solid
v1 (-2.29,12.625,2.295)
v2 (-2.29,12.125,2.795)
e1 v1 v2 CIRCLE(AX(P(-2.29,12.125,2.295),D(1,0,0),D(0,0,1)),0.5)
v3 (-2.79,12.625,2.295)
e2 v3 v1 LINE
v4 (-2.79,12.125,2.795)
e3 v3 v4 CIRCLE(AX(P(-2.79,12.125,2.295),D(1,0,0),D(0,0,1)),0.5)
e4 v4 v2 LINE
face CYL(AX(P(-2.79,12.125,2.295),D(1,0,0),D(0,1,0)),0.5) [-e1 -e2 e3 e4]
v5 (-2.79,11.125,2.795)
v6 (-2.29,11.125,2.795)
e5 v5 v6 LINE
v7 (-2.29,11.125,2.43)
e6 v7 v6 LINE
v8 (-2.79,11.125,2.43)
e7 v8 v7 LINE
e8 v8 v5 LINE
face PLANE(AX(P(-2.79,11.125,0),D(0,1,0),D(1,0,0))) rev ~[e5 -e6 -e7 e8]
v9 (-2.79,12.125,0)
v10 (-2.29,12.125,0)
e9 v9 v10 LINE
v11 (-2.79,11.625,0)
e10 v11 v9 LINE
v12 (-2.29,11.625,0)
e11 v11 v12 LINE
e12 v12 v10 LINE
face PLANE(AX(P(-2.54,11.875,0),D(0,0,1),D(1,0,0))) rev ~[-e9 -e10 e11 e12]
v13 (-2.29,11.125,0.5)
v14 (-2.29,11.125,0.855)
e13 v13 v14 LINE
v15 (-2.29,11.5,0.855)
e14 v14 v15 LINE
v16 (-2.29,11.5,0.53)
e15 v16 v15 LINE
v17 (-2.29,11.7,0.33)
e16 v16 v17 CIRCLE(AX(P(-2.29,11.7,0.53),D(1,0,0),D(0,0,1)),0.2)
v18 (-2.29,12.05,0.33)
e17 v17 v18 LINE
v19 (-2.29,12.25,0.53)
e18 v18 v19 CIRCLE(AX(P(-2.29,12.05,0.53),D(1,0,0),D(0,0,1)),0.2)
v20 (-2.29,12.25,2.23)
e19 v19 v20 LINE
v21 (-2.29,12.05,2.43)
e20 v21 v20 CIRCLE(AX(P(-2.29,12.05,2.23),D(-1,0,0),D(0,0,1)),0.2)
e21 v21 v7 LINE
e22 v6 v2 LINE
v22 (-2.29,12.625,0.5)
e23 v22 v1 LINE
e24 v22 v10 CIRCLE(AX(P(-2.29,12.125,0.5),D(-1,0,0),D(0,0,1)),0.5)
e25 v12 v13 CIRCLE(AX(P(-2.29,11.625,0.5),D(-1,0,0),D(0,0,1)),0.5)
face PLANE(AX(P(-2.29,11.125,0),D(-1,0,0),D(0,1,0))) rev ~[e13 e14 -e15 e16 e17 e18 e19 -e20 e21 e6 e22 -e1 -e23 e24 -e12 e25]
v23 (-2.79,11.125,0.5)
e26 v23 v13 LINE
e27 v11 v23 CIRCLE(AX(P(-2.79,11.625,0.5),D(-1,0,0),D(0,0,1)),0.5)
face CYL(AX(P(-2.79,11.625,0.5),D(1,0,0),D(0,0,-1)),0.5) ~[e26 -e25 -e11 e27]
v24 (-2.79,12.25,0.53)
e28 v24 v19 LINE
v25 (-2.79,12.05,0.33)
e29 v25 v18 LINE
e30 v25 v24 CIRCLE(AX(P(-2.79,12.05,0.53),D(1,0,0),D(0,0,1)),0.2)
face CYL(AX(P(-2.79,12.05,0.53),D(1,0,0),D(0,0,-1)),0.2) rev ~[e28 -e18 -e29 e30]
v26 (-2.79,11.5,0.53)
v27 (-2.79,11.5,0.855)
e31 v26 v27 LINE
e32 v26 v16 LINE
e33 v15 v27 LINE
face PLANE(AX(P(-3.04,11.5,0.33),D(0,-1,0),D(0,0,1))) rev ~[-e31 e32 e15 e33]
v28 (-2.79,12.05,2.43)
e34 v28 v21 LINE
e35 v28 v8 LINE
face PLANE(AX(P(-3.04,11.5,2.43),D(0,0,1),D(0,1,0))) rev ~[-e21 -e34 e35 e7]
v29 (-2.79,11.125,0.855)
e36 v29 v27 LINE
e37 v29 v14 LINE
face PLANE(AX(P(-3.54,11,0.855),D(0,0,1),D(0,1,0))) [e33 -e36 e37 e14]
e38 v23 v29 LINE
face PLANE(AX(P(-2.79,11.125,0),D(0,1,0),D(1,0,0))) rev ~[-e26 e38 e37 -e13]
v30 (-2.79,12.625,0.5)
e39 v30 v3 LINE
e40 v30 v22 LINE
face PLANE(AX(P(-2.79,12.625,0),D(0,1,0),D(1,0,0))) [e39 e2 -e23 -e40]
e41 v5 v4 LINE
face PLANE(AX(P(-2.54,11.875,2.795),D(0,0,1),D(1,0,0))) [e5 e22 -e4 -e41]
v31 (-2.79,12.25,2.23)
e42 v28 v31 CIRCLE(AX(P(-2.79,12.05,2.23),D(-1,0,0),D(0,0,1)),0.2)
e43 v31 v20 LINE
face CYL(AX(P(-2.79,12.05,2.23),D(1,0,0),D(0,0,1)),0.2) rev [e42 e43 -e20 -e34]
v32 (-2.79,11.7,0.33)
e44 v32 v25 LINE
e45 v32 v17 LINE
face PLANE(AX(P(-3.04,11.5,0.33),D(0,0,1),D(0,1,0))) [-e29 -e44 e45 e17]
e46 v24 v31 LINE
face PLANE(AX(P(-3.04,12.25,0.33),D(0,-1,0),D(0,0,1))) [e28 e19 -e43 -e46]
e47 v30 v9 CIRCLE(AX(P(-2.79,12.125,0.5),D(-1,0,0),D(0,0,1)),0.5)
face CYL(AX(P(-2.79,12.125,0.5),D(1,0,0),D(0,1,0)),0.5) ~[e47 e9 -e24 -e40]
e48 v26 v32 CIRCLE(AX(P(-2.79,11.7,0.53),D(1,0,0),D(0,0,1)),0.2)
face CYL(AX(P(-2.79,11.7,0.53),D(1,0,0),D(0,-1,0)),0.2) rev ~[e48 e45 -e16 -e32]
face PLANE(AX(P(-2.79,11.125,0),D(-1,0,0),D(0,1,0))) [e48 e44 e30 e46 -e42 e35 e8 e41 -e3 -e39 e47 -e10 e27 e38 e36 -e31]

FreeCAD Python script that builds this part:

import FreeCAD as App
import Part
import Sketcher
from FreeCAD import Vector
Q = App.Units.Quantity


def edges_at(feature, points):
    """Names of the edges that pass closest to the given points."""
    edges = feature.Shape.Edges
    near = lambda p: min(range(len(edges)), key=lambda i: edges[i].distToShape(Part.Vertex(*p))[0])
    return sorted({f"Edge{near(p) + 1}" for p in points})


def add_polygon(sketch, points):
    """Adds a closed chain of lines whose ends are joined by coincident constraints."""
    first, n = sketch.GeometryCount, len(points)
    for a, b in zip(points, points[1:] + points[:1]):
        sketch.addGeometry(Part.LineSegment(App.Vector(*a, 0), App.Vector(*b, 0)), False)
    for i in range(n):
        sketch.addConstraint(Sketcher.Constraint("Coincident", first + i, 2, first + (i + 1) % n, 1))

doc = App.newDocument("Part")
body = doc.addObject("PartDesign::Body", "Body")

sketch1 = body.newObject("Sketcher::SketchObject", "Sketch")
sketch1.AttachmentSupport = (doc.getObject("XY_Plane"), [""])
sketch1.MapMode = "FlatFace"
add_polygon(sketch1, [(-0.25, 12.625), (-0.25, 11.125), (0.25, 11.125), (0.25, 12.625)])
sketch1.addConstraint([
    Sketcher.Constraint("Vertical", 0),
    Sketcher.Constraint("Horizontal", 1),
    Sketcher.Constraint("Vertical", 2),
    Sketcher.Constraint("Horizontal", 3),
    Sketcher.Constraint("DistanceX", 1, 1, 1, 2, Q("0.5 mm")),
    Sketcher.Constraint("DistanceY", 0, 2, 0, 1, Q("1.5 mm")),
    Sketcher.Constraint("DistanceX", 0, 2, -1, 1, Q("0.25 mm")),
    Sketcher.Constraint("DistanceY", -1, 1, 0, 2, Q("11.125 mm")),
])
pad1 = body.newObject("PartDesign::Pad", "Pad")
pad1.Profile = sketch1
pad1.Length = 2.795
doc.recompute()

fillet = body.newObject("PartDesign::Fillet", "Fillet")
fillet.Base = (pad1, edges_at(pad1, [(0, 12.625, 0)]))
fillet.Radius = 0.5
doc.recompute()

fillet2 = body.newObject("PartDesign::Fillet", "Fillet001")
fillet2.Base = (fillet, edges_at(fillet, [(0, 12.625, 2.795)]))
fillet2.Radius = 0.5
doc.recompute()

fillet3 = body.newObject("PartDesign::Fillet", "Fillet002")
fillet3.Base = (fillet2, edges_at(fillet2, [(0, 11.125, 0)]))
fillet3.Radius = 0.5

sketch2 = body.newObject("Sketcher::SketchObject", "Sketch001")
sketch2.AttachmentSupport = (doc.getObject("YZ_Plane"), [""])
sketch2.MapMode = "FlatFace"
sketch2.AttachmentOffset = App.Placement(Vector(0, 0, -0.5), App.Rotation())
add_polygon(sketch2, [(11.5, 2.43), (11.5, 0.33), (12.25, 0.33), (12.25, 2.43)])
sketch2.addConstraint([
    Sketcher.Constraint("Vertical", 0),
    Sketcher.Constraint("Horizontal", 1),
    Sketcher.Constraint("Vertical", 2),
    Sketcher.Constraint("Horizontal", 3),
    Sketcher.Constraint("DistanceY", 0, 2, 0, 1, Q("2.1 mm")),
    Sketcher.Constraint("DistanceX", 1, 1, 1, 2, Q("0.75 mm")),
    Sketcher.Constraint("DistanceX", -1, 1, 0, 2, Q("11.5 mm")),
    Sketcher.Constraint("DistanceY", -1, 1, 0, 2, Q("0.33 mm")),
])
pocket1 = body.newObject("PartDesign::Pocket", "Pocket")
pocket1.Profile = sketch2
pocket1.Length = 1
pocket1.Reversed = True
doc.recompute()

fillet4 = body.newObject("PartDesign::Fillet", "Fillet003")
fillet4.Base = (pocket1, edges_at(pocket1, [(0, 11.5, 0.33)]))
fillet4.Radius = 0.2
doc.recompute()

fillet5 = body.newObject("PartDesign::Fillet", "Fillet004")
fillet5.Base = (fillet4, edges_at(fillet4, [(0, 12.25, 0.33)]))
fillet5.Radius = 0.2
doc.recompute()

fillet6 = body.newObject("PartDesign::Fillet", "Fillet005")
fillet6.Base = (fillet5, edges_at(fillet5, [(0, 11.5, 2.43)]))
fillet6.Radius = 0.2
doc.recompute()

fillet7 = body.newObject("PartDesign::Fillet", "Fillet006")
fillet7.Base = (fillet6, edges_at(fillet6, [(0, 12.25, 2.43)]))
fillet7.Radius = 0.2

sketch3 = body.newObject("Sketcher::SketchObject", "Sketch002")
sketch3.AttachmentSupport = (doc.getObject("YZ_Plane"), [""])
sketch3.MapMode = "FlatFace"
sketch3.AttachmentOffset = App.Placement(Vector(0, 0, -1), App.Rotation())
add_polygon(sketch3, [(11, 2.43), (11, 0.855), (12, 0.855), (12, 2.43)])
sketch3.addConstraint([
    Sketcher.Constraint("Vertical", 0),
    Sketcher.Constraint("Horizontal", 1),
    Sketcher.Constraint("Vertical", 2),
    Sketcher.Constraint("Horizontal", 3),
    Sketcher.Constraint("DistanceX", 1, 1, 1, 2, Q("1 mm")),
    Sketcher.Constraint("DistanceX", -1, 1, 0, 2, Q("11 mm")),
    Sketcher.Constraint("DistanceY", 0, 2, 0, 1, Q("1.575 mm")),
    Sketcher.Constraint("DistanceY", -1, 1, 2, 2, Q("2.43 mm")),
])
pocket2 = body.newObject("PartDesign::Pocket", "Pocket001")
pocket2.Profile = sketch3
pocket2.Length = 3
pocket2.Reversed = True
body2 = doc.addObject("PartDesign::Body", "Body001")
doc.recompute()

body.Placement = App.Placement(Vector(-2.54, 0, 0), App.Rotation(Vector(0, 0, 1), 0))
boolean = body2.newObject("PartDesign::Boolean", "Boolean")
boolean.Type = "Fuse"
boolean.addObjects([body])

doc.recompute()
